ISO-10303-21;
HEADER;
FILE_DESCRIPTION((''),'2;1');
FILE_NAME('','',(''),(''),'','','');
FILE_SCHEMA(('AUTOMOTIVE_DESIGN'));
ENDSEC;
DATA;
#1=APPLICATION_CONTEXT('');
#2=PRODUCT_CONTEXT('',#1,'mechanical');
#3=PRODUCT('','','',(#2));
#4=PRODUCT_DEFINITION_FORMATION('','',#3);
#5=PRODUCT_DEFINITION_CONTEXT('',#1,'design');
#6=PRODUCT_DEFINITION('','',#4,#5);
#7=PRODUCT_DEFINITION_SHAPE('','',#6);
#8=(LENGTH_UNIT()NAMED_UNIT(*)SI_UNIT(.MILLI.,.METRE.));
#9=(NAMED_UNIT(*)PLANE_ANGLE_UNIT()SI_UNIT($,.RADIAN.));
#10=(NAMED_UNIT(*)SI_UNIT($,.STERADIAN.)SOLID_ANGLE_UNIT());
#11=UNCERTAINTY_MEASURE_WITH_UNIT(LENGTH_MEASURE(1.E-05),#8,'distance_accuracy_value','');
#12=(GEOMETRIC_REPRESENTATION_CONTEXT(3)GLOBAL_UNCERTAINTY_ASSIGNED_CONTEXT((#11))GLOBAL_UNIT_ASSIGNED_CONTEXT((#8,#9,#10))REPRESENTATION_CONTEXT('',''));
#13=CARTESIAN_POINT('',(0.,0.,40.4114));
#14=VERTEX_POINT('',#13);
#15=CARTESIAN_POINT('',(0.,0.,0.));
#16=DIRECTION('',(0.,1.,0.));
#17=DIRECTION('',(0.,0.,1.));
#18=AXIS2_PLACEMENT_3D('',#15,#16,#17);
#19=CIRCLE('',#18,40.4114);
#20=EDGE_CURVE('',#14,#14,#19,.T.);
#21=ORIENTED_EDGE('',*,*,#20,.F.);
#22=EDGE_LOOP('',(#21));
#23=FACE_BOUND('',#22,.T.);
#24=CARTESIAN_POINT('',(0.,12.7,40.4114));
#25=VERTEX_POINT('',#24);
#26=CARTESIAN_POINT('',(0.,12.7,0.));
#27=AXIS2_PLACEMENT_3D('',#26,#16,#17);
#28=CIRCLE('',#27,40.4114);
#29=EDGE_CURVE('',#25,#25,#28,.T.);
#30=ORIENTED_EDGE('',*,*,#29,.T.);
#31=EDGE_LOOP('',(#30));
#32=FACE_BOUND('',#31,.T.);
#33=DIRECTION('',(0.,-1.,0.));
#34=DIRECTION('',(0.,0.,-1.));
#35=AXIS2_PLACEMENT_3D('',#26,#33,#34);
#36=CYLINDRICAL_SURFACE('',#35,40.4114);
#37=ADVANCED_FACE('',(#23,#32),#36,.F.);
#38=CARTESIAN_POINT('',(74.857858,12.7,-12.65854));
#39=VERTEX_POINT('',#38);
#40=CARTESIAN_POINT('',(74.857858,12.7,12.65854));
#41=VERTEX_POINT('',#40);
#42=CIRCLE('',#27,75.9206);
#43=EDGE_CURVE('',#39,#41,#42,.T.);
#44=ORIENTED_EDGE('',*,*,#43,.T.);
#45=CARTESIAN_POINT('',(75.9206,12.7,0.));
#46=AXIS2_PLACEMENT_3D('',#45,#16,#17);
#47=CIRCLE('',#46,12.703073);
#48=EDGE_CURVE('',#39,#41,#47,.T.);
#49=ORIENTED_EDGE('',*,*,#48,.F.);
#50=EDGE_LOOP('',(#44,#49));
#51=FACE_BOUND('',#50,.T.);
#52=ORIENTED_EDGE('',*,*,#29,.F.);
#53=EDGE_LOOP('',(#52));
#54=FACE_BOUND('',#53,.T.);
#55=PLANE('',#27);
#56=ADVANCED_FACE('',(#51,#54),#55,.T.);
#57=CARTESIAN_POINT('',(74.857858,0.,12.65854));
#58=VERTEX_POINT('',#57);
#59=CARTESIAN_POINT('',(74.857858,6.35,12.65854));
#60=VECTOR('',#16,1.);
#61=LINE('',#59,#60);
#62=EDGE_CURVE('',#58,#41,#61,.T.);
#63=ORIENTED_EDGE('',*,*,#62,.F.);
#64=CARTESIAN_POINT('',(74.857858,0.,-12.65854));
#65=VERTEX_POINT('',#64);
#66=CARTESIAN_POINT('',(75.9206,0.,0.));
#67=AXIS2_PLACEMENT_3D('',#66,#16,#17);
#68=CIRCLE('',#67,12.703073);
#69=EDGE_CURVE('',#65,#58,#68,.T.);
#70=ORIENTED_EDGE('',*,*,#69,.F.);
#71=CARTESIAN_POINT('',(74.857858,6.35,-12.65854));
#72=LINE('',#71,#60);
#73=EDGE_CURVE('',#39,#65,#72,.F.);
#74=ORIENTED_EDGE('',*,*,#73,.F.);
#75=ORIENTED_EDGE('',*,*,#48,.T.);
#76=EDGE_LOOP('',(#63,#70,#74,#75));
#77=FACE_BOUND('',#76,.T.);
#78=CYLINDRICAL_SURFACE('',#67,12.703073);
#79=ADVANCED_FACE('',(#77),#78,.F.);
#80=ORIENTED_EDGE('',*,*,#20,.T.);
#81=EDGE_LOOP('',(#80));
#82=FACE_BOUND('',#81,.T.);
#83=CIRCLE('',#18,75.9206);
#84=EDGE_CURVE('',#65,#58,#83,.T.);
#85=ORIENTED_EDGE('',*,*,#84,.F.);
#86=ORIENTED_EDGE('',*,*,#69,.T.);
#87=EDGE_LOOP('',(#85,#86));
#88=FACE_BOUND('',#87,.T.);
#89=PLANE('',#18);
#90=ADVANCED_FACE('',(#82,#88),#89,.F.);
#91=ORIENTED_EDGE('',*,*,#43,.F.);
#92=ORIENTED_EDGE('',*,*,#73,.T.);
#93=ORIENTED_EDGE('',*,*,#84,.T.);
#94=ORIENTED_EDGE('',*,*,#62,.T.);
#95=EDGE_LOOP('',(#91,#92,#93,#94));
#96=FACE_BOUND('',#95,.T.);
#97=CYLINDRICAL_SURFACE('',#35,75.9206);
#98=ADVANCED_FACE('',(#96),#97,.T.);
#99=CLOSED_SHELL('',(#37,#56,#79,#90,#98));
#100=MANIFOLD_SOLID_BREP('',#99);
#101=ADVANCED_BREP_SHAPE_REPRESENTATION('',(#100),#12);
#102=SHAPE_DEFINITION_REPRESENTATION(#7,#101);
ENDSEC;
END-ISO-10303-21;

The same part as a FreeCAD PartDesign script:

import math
import FreeCAD as App
import Part
import Sketcher

V = App.Vector
Q = App.Units.Quantity

doc = App.newDocument("Part")
params = doc.addObject("Spreadsheet::Sheet", "Params")
for row, (alias, value) in enumerate([
    ("sketch1_diameter", "5.978 in"),
    ("pad1_length", "0.5 in"),
    ("sketch2_diameter", "3.182 in"),
    ("sketch3_height", "1 in"),
], start=1):
    params.set(f"A{row}", alias)
    params.set(f"B{row}", "=" + value)
    params.setAlias(f"B{row}", alias)

body = doc.addObject("PartDesign::Body", "Body")

# Sketch on XZ plane
sketch1 = doc.addObject("Sketcher::SketchObject", "Sketch")
body.addObject(sketch1)
sketch1.AttachmentSupport = (doc.XZ_Plane, [""])
sketch1.MapMode = "FlatFace"
sketch1.addGeometry(Part.Circle(V(0, 0, 0), V(0, 0, 1), 76), False)
sketch1.addConstraint(Sketcher.Constraint("Coincident", 0, 3, -1, 1))
sketch1.addConstraint(Sketcher.Constraint("Diameter", 0, Q("5.978 in")))
sketch1.setExpression("Constraints[1]", "Params.sketch1_diameter")
pad1 = doc.addObject("PartDesign::Pad", "Pad")
body.addObject(pad1)
pad1.Profile = sketch1
pad1.setExpression("Length", "Params.pad1_length")
pad1.Reversed = True

# Sketch on XZ plane
sketch2 = doc.addObject("Sketcher::SketchObject", "Sketch001")
body.addObject(sketch2)
sketch2.AttachmentSupport = (doc.XZ_Plane, [""])
sketch2.MapMode = "FlatFace"
sketch2.addGeometry(Part.Circle(V(0, 0, 0), V(0, 0, 1), 40), False)
sketch2.addConstraint(Sketcher.Constraint("Coincident", 0, 3, -1, 1))
sketch2.addConstraint(Sketcher.Constraint("Diameter", 0, Q("3.182 in")))
sketch2.setExpression("Constraints[1]", "Params.sketch2_diameter")
pocket1 = doc.addObject("PartDesign::Pocket", "Pocket")
body.addObject(pocket1)
pocket1.Profile = sketch2
pocket1.Type = "ThroughAll"

# Sketch on XZ plane
sketch3 = doc.addObject("Sketcher::SketchObject", "Sketch002")
body.addObject(sketch3)
sketch3.AttachmentSupport = (doc.XZ_Plane, [""])
sketch3.MapMode = "FlatFace"
sketch3.AttachmentOffset = App.Placement(V(0, 0, -0.5 * 25.4), App.Rotation())
sketch3.addGeometry(Part.LineSegment(V(76, 13, 0), V(76, -13, 0)), False)
sketch3.addGeometry(Part.ArcOfCircle(Part.Circle(V(76, 0, 0), V(0, 0, 1), 13), math.radians(89), math.radians(271)), False)
sketch3.addConstraint(Sketcher.Constraint("Coincident", 0, 1, 1, 1))
sketch3.addConstraint(Sketcher.Constraint("Coincident", 1, 2, 0, 2))
sketch3.addConstraint(Sketcher.Constraint("Vertical", 0))
sketch3.addConstraint(Sketcher.Constraint("PointOnObject", 1, 3, -1))
sketch3.addConstraint(Sketcher.Constraint("DistanceY", 0, 2, 0, 1, Q("1 in")))
sketch3.addConstraint(Sketcher.Constraint("DistanceX", -1, 1, 0, 1, Q("3 in")))
sketch3.addConstraint(Sketcher.Constraint("DistanceX", -1, 1, 1, 3, Q("2.989 in")))
sketch3.setExpression("Constraints[4]", "Params.sketch3_height")
pocket2 = doc.addObject("PartDesign::Pocket", "Pocket001")
body.addObject(pocket2)
pocket2.Profile = sketch3
pocket2.Type = "ThroughAll"
pocket2.Reversed = True

doc.recompute()
